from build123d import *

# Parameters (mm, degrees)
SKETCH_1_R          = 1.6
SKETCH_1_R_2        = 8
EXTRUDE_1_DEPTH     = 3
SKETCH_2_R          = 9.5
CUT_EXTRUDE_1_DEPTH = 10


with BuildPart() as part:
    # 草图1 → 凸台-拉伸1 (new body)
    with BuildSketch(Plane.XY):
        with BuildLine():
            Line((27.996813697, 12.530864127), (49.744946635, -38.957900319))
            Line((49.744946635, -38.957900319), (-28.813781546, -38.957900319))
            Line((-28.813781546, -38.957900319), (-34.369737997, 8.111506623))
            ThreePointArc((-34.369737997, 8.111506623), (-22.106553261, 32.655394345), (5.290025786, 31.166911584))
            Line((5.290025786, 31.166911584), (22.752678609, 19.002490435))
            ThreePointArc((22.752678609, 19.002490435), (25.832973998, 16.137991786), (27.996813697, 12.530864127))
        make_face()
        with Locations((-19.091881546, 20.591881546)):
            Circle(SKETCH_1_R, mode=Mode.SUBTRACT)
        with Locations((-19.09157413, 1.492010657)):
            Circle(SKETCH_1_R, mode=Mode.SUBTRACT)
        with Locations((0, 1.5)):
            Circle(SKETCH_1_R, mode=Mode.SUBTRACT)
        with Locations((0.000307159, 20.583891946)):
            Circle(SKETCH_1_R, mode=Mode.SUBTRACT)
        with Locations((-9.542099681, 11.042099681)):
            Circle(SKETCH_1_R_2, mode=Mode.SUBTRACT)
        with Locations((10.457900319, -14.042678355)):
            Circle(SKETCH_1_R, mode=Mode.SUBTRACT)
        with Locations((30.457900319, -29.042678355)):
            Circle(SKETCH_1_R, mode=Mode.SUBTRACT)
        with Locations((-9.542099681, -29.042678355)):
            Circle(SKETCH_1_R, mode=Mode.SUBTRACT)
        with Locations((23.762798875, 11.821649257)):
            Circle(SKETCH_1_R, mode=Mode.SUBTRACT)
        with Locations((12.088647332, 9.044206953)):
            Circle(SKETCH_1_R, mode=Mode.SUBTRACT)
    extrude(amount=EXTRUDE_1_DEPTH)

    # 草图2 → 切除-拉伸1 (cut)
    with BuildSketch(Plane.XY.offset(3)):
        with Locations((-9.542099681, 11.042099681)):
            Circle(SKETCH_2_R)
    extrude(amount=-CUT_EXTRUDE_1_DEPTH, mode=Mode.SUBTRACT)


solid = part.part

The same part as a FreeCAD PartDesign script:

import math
import FreeCAD as App
import Part
import Sketcher

doc = App.newDocument("Part")
body = doc.addObject("PartDesign::Body", "Body")

sketch1 = body.newObject("Sketcher::SketchObject", "Sketch")
sketch1.AttachmentSupport = (doc.getObject("XY_Plane"), [""])
sketch1.MapMode = "FlatFace"
sketch1.addGeometry(Part.LineSegment(App.Vector(49.744947, -38.9579, 0), App.Vector(27.996814, 12.530864, 0)), False)
sketch1.addGeometry(Part.ArcOfCircle(Part.Circle(App.Vector(14.178881, 6.694363, 0), App.Vector(0, 0, 1), 15), math.radians(22.898515), math.radians(55.13907)), False)
sketch1.addGeometry(Part.LineSegment(App.Vector(22.752679, 19.00249, 0), App.Vector(5.290026, 31.166912, 0)), False)
sketch1.addGeometry(Part.ArcOfCircle(Part.Circle(App.Vector(-9.5421, 11.0421, 0), App.Vector(0, 0, 1), 25), math.radians(53.609529), math.radians(186.731903)), False)
sketch1.addGeometry(Part.LineSegment(App.Vector(-34.369738, 8.111507, 0), App.Vector(-28.813782, -38.9579, 0)), False)
sketch1.addGeometry(Part.LineSegment(App.Vector(-28.813782, -38.9579, 0), App.Vector(49.744947, -38.9579, 0)), False)
sketch1.addGeometry(Part.Circle(App.Vector(30.4579, -29.042678, 0), App.Vector(0, 0, 1), 1.6), False)
sketch1.addGeometry(Part.Circle(App.Vector(10.4579, -14.042678, 0), App.Vector(0, 0, 1), 1.6), False)
sketch1.addGeometry(Part.Circle(App.Vector(-9.5421, -29.042678, 0), App.Vector(0, 0, 1), 1.6), False)
sketch1.addGeometry(Part.Circle(App.Vector(23.762799, 11.821649, 0), App.Vector(0, 0, 1), 1.6), False)
sketch1.addGeometry(Part.Circle(App.Vector(12.088647, 9.044207, 0), App.Vector(0, 0, 1), 1.6), False)
sketch1.addGeometry(Part.Circle(App.Vector(0, 1.5, 0), App.Vector(0, 0, 1), 1.6), False)
sketch1.addGeometry(Part.Circle(App.Vector(-19.091574, 1.492011, 0), App.Vector(0, 0, 1), 1.6), False)
sketch1.addGeometry(Part.Circle(App.Vector(0.000307, 20.583892, 0), App.Vector(0, 0, 1), 1.6), False)
sketch1.addGeometry(Part.Circle(App.Vector(-9.5421, 11.0421, 0), App.Vector(0, 0, 1), 8), False)
sketch1.addGeometry(Part.Circle(App.Vector(-19.091882, 20.591882, 0), App.Vector(0, 0, 1), 1.6), False)
sketch1.addConstraint(Sketcher.Constraint("Coincident", 0, 2, 1, 1))
sketch1.addConstraint(Sketcher.Constraint("Coincident", 1, 2, 2, 1))
sketch1.addConstraint(Sketcher.Constraint("Coincident", 2, 2, 3, 1))
sketch1.addConstraint(Sketcher.Constraint("Coincident", 3, 2, 4, 1))
sketch1.addConstraint(Sketcher.Constraint("Coincident", 4, 2, 5, 1))
sketch1.addConstraint(Sketcher.Constraint("Coincident", 5, 2, 0, 1))
sketch1.addConstraint(Sketcher.Constraint("Horizontal", 5))
sketch1.addConstraint(Sketcher.Constraint("Coincident", 14, 3, 3, 3))
sketch1.addConstraint(Sketcher.Constraint("PointOnObject", 11, 3, -2))
sketch1.addConstraint(Sketcher.Constraint("Diameter", 14, 16.0))
sketch1.addConstraint(Sketcher.Constraint("Radius", 1, 15.0))
sketch1.addConstraint(Sketcher.Constraint("Radius", 3, 25.0))
sketch1.addConstraint(Sketcher.Constraint("Diameter", 6, 3.2))
sketch1.addConstraint(Sketcher.Constraint("Diameter", 7, 3.2))
sketch1.addConstraint(Sketcher.Constraint("Diameter", 8, 3.2))
sketch1.addConstraint(Sketcher.Constraint("Diameter", 9, 3.2))
sketch1.addConstraint(Sketcher.Constraint("Diameter", 10, 3.2))
sketch1.addConstraint(Sketcher.Constraint("Diameter", 11, 3.2))
sketch1.addConstraint(Sketcher.Constraint("Diameter", 12, 3.2))
sketch1.addConstraint(Sketcher.Constraint("Diameter", 13, 3.2))
sketch1.addConstraint(Sketcher.Constraint("Diameter", 15, 3.2))
sketch1.addConstraint(Sketcher.Constraint("DistanceX", 3, 3, 6, 3, 40.0))
sketch1.addConstraint(Sketcher.Constraint("DistanceX", 7, 3, 6, 3, 20.0))
sketch1.addConstraint(Sketcher.Constraint("DistanceY", 6, 3, 7, 3, 15.0))
sketch1.addConstraint(Sketcher.Constraint("DistanceX", 8, 3, 7, 3, 20.0))
sketch1.addConstraint(Sketcher.Constraint("DistanceY", 8, 3, 7, 3, 15.0))
sketch1.addConstraint(Sketcher.Constraint("DistanceY", -1, 1, 11, 3, 1.5))
sketch1.addConstraint(Sketcher.Constraint("DistanceX", 5, 1, 5, 2, 78.558728))
sketch1.addConstraint(Sketcher.Constraint("DistanceX", 3, 3, -1, 1, 9.5421))
sketch1.addConstraint(Sketcher.Constraint("DistanceY", -1, 1, 3, 3, 11.0421))
sketch1.addConstraint(Sketcher.Constraint("DistanceX", -1, 1, 9, 3, 23.762799))
sketch1.addConstraint(Sketcher.Constraint("DistanceY", 4, 2, -1, 1, 38.9579))
sketch1.addConstraint(Sketcher.Constraint("DistanceY", 1, 3, 0, 2, 5.836501))
sketch1.addConstraint(Sketcher.Constraint("DistanceY", 1, 2, 13, 3, 1.581402))
sketch1.addConstraint(Sketcher.Constraint("Distance", 4, 47.396178))
sketch1.addConstraint(Sketcher.Constraint("DistanceX", -1, 1, 1, 3, 14.178881))
sketch1.addConstraint(Sketcher.Constraint("DistanceY", 6, 3, -1, 1, 29.042678))
sketch1.addConstraint(Sketcher.Constraint("DistanceY", -1, 1, 9, 3, 11.821649))
sketch1.addConstraint(Sketcher.Constraint("DistanceY", -1, 1, 12, 3, 1.492011))
sketch1.addConstraint(Sketcher.Constraint("DistanceY", -1, 1, 13, 3, 20.583892))
sketch1.addConstraint(Sketcher.Constraint("DistanceX", 15, 3, -1, 1, 19.091882))
sketch1.addConstraint(Sketcher.Constraint("DistanceY", -1, 1, 15, 3, 20.591882))
sketch1.addConstraint(Sketcher.Constraint("DistanceX", -1, 1, 1, 2, 22.752679))
sketch1.addConstraint(Sketcher.Constraint("DistanceY", -1, 1, 2, 2, 31.166912))
sketch1.addConstraint(Sketcher.Constraint("DistanceX", 4, 2, -1, 1, 28.813782))
sketch1.addConstraint(Sketcher.Constraint("DistanceX", 10, 3, 9, 3, 11.674152))
sketch1.addConstraint(Sketcher.Constraint("DistanceX", 12, 3, 10, 3, 31.180221))
sketch1.addConstraint(Sketcher.Constraint("DistanceX", 13, 3, 10, 3, 12.08834))
sketch1.addConstraint(Sketcher.Constraint("DistanceY", -1, 1, 10, 3, 9.044207))
pad1 = body.newObject("PartDesign::Pad", "Pad")
pad1.Profile = sketch1
pad1.Length = 3

sketch2 = body.newObject("Sketcher::SketchObject", "Sketch001")
sketch2.AttachmentSupport = (doc.getObject("XY_Plane"), [""])
sketch2.MapMode = "FlatFace"
sketch2.AttachmentOffset = App.Placement(App.Vector(0, 0, 3), App.Rotation())
sketch2.addGeometry(Part.Circle(App.Vector(-10, 11, 0), App.Vector(0, 0, 1), 10), False)
sketch2.addConstraint(Sketcher.Constraint("Diameter", 0, 19.0))
sketch2.addConstraint(Sketcher.Constraint("DistanceX", 0, 3, -1, 1, 9.5421))
sketch2.addConstraint(Sketcher.Constraint("DistanceY", -1, 1, 0, 3, 11.0421))
pocket1 = body.newObject("PartDesign::Pocket", "Pocket")
pocket1.Profile = sketch2
pocket1.Length = 10

doc.recompute()
